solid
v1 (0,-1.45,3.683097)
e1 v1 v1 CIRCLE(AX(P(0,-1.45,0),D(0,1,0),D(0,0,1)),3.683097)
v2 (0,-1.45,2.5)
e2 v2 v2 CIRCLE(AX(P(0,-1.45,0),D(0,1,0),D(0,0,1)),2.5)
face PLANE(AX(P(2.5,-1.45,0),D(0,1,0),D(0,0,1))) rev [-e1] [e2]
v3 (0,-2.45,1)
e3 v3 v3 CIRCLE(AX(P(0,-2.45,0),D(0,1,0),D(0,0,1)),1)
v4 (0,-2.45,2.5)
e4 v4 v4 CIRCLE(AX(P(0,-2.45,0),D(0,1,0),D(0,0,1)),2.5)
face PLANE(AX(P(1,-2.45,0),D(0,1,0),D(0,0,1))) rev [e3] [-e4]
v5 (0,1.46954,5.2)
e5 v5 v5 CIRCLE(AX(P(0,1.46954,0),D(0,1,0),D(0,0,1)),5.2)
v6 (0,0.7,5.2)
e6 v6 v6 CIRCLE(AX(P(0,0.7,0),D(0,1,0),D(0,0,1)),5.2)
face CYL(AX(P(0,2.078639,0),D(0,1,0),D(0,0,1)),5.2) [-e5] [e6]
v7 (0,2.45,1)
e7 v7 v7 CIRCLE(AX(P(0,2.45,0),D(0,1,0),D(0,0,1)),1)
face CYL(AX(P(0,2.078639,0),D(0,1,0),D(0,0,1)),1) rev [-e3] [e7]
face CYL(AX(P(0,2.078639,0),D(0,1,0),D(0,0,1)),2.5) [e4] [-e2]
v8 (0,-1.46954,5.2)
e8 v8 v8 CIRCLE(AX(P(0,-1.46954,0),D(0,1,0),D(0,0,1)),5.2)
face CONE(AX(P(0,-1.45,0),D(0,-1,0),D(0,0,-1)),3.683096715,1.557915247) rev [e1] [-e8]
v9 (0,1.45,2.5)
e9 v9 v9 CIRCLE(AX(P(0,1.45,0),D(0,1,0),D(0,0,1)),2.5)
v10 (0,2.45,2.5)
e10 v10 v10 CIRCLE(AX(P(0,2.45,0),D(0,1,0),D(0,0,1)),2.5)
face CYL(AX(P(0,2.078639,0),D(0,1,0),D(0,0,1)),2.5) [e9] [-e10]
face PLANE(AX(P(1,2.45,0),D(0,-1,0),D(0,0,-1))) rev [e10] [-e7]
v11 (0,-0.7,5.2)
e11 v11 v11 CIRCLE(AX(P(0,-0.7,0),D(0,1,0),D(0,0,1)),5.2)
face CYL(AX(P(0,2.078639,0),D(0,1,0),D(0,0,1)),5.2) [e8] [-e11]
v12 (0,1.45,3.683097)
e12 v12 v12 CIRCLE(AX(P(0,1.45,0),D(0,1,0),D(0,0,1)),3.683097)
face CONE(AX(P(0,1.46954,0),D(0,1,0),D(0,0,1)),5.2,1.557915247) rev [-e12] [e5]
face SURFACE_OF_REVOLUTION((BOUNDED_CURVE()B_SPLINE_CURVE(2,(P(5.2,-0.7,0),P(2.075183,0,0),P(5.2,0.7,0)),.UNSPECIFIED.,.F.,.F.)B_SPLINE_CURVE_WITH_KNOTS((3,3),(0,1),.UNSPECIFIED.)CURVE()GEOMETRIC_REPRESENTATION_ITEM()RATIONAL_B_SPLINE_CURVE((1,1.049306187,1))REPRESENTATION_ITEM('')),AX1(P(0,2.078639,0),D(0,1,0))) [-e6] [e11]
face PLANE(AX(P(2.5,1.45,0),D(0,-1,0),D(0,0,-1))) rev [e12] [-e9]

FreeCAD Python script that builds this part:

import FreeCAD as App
import Part
import Sketcher

V = App.Vector

doc = App.newDocument("Part")
body = doc.addObject("PartDesign::Body", "Body")

# Sketch on XY plane
sketch1 = doc.addObject("Sketcher::SketchObject", "Sketch")
body.addObject(sketch1)
sketch1.AttachmentSupport = (doc.XY_Plane, [""])
sketch1.MapMode = "FlatFace"
sketch1.addGeometry(Part.LineSegment(V(2.5, -1.45, 0), V(3.683097, -1.45, 0)), False)
sketch1.addGeometry(Part.LineSegment(V(3.683097, -1.45, 0), V(5.2, -1.46954, 0)), False)
sketch1.addGeometry(Part.LineSegment(V(5.2, -1.46954, 0), V(5.2, -0.7, 0)), False)
sketch1.addGeometry(Part.BSplineCurve([V(5.2, 0.7, 0), V(2.075183, 0, 0), V(5.2, -0.7, 0)], [3, 3], [0, 1], False, 2, [1, 1.049306187, 1], False), False)
sketch1.addGeometry(Part.LineSegment(V(5.2, 0.7, 0), V(5.2, 1.46954, 0)), False)
sketch1.addGeometry(Part.LineSegment(V(5.2, 1.46954, 0), V(3.683097, 1.45, 0)), False)
sketch1.addGeometry(Part.LineSegment(V(3.683097, 1.45, 0), V(2.5, 1.45, 0)), False)
sketch1.addGeometry(Part.LineSegment(V(2.5, 1.45, 0), V(2.5, 2.45, 0)), False)
sketch1.addGeometry(Part.LineSegment(V(2.5, 2.45, 0), V(1, 2.45, 0)), False)
sketch1.addGeometry(Part.LineSegment(V(1, 2.45, 0), V(1, -2.45, 0)), False)
sketch1.addGeometry(Part.LineSegment(V(1, -2.45, 0), V(2.5, -2.45, 0)), False)
sketch1.addGeometry(Part.LineSegment(V(2.5, -2.45, 0), V(2.5, -1.45, 0)), False)
sketch1.addConstraint(Sketcher.Constraint("Block", 3))
sketch1.addConstraint(Sketcher.Constraint("Coincident", 0, 2, 1, 1))
sketch1.addConstraint(Sketcher.Constraint("Coincident", 1, 2, 2, 1))
sketch1.addConstraint(Sketcher.Constraint("Coincident", 2, 2, 3, 2))
sketch1.addConstraint(Sketcher.Constraint("Coincident", 3, 1, 4, 1))
sketch1.addConstraint(Sketcher.Constraint("Coincident", 4, 2, 5, 1))
sketch1.addConstraint(Sketcher.Constraint("Coincident", 5, 2, 6, 1))
sketch1.addConstraint(Sketcher.Constraint("Coincident", 6, 2, 7, 1))
sketch1.addConstraint(Sketcher.Constraint("Coincident", 7, 2, 8, 1))
sketch1.addConstraint(Sketcher.Constraint("Coincident", 8, 2, 9, 1))
sketch1.addConstraint(Sketcher.Constraint("Coincident", 9, 2, 10, 1))
sketch1.addConstraint(Sketcher.Constraint("Coincident", 10, 2, 11, 1))
sketch1.addConstraint(Sketcher.Constraint("Coincident", 11, 2, 0, 1))
sketch1.addConstraint(Sketcher.Constraint("Horizontal", 0))
sketch1.addConstraint(Sketcher.Constraint("Vertical", 2))
sketch1.addConstraint(Sketcher.Constraint("Vertical", 4))
sketch1.addConstraint(Sketcher.Constraint("Horizontal", 6))
sketch1.addConstraint(Sketcher.Constraint("Vertical", 7))
sketch1.addConstraint(Sketcher.Constraint("Horizontal", 8))
sketch1.addConstraint(Sketcher.Constraint("Vertical", 9))
sketch1.addConstraint(Sketcher.Constraint("Horizontal", 10))
sketch1.addConstraint(Sketcher.Constraint("Vertical", 11))
sketch1.addConstraint(Sketcher.Constraint("Symmetric", 0, 2, 5, 2, -1))
sketch1.addConstraint(Sketcher.Constraint("Symmetric", 7, 2, 10, 2, -1))
sketch1.addConstraint(Sketcher.Constraint("Equal", 2, 4))
sketch1.addConstraint(Sketcher.Constraint("DistanceY", 7, 1, 7, 2, 1.0))
sketch1.addConstraint(Sketcher.Constraint("DistanceX", 8, 2, 8, 1, 1.5))
sketch1.addConstraint(Sketcher.Constraint("DistanceY", 9, 2, 9, 1, 4.9))
sketch1.addConstraint(Sketcher.Constraint("DistanceX", -1, 1, 8, 2, 1.0))
sketch1.addConstraint(Sketcher.Constraint("DistanceY", 2, 1, 2, 2, 0.76954))
sketch1.addConstraint(Sketcher.Constraint("Distance", 1, 1.517029))
revolution = doc.addObject("PartDesign::Revolution", "Revolution")
body.addObject(revolution)
revolution.Profile = sketch1
revolution.ReferenceAxis = (sketch1, ["V_Axis"])
revolution.Angle = 360

doc.recompute()
